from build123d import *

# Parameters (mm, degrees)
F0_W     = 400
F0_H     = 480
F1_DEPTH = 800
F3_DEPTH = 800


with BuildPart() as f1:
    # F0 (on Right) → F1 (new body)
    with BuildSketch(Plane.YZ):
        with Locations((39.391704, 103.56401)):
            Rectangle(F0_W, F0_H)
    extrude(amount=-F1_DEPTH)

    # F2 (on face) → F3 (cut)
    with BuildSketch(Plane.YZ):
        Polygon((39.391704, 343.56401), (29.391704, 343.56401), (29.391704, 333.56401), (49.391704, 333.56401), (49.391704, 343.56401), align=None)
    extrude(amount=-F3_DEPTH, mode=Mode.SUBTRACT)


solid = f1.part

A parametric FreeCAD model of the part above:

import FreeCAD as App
import Part
import Sketcher


def add_polygon(sketch, points):
    """Adds a closed chain of lines whose ends are joined by coincident constraints."""
    first, n = sketch.GeometryCount, len(points)
    for a, b in zip(points, points[1:] + points[:1]):
        sketch.addGeometry(Part.LineSegment(App.Vector(*a, 0), App.Vector(*b, 0)), False)
    for i in range(n):
        sketch.addConstraint(Sketcher.Constraint("Coincident", first + i, 2, first + (i + 1) % n, 1))

doc = App.newDocument("Part")
body = doc.addObject("PartDesign::Body", "Body")

# Sketch on YZ plane
sketch1 = body.newObject("Sketcher::SketchObject", "Sketch")
sketch1.AttachmentSupport = (doc.getObject("YZ_Plane"), [""])
sketch1.MapMode = "FlatFace"
add_polygon(sketch1, [(-160.608296, 343.56401), (-160.608296, -136.43599), (239.391704, -136.43599), (239.391704, 343.56401)])  # lines 0-3
sketch1.addConstraint([
    Sketcher.Constraint("Vertical", 0),
    Sketcher.Constraint("Horizontal", 1),
    Sketcher.Constraint("Vertical", 2),
    Sketcher.Constraint("Horizontal", 3),
    Sketcher.Constraint("DistanceX", 1, 1, 1, 2, 400.0),
    Sketcher.Constraint("DistanceY", 0, 2, 0, 1, 480.0),
    Sketcher.Constraint("DistanceY", 0, 2, -1, 1, 136.43599),
    Sketcher.Constraint("DistanceX", 0, 2, -1, 1, 160.608296),
])
pad1 = body.newObject("PartDesign::Pad", "Pad")
pad1.Profile = sketch1
pad1.Length = 800
pad1.Reversed = True

# Sketch on YZ plane
sketch2 = body.newObject("Sketcher::SketchObject", "Sketch001")
sketch2.AttachmentSupport = (doc.getObject("YZ_Plane"), [""])
sketch2.MapMode = "FlatFace"
add_polygon(sketch2, [(29.391704, 343.56401), (29.391704, 333.56401), (49.391704, 333.56401), (49.391704, 343.56401)])  # lines 0-3
sketch2.addConstraint([
    Sketcher.Constraint("Vertical", 0),
    Sketcher.Constraint("Horizontal", 1),
    Sketcher.Constraint("Vertical", 2),
    Sketcher.Constraint("Horizontal", 3),
    Sketcher.Constraint("DistanceX", 1, 1, 1, 2, 20.0),
    Sketcher.Constraint("DistanceY", 0, 2, 0, 1, 10.0),
    Sketcher.Constraint("DistanceY", -1, 1, 0, 2, 333.56401),
    Sketcher.Constraint("DistanceX", -1, 1, 0, 2, 29.391704),
])
pocket1 = body.newObject("PartDesign::Pocket", "Pocket")
pocket1.Profile = sketch2
pocket1.Length = 800

doc.recompute()
